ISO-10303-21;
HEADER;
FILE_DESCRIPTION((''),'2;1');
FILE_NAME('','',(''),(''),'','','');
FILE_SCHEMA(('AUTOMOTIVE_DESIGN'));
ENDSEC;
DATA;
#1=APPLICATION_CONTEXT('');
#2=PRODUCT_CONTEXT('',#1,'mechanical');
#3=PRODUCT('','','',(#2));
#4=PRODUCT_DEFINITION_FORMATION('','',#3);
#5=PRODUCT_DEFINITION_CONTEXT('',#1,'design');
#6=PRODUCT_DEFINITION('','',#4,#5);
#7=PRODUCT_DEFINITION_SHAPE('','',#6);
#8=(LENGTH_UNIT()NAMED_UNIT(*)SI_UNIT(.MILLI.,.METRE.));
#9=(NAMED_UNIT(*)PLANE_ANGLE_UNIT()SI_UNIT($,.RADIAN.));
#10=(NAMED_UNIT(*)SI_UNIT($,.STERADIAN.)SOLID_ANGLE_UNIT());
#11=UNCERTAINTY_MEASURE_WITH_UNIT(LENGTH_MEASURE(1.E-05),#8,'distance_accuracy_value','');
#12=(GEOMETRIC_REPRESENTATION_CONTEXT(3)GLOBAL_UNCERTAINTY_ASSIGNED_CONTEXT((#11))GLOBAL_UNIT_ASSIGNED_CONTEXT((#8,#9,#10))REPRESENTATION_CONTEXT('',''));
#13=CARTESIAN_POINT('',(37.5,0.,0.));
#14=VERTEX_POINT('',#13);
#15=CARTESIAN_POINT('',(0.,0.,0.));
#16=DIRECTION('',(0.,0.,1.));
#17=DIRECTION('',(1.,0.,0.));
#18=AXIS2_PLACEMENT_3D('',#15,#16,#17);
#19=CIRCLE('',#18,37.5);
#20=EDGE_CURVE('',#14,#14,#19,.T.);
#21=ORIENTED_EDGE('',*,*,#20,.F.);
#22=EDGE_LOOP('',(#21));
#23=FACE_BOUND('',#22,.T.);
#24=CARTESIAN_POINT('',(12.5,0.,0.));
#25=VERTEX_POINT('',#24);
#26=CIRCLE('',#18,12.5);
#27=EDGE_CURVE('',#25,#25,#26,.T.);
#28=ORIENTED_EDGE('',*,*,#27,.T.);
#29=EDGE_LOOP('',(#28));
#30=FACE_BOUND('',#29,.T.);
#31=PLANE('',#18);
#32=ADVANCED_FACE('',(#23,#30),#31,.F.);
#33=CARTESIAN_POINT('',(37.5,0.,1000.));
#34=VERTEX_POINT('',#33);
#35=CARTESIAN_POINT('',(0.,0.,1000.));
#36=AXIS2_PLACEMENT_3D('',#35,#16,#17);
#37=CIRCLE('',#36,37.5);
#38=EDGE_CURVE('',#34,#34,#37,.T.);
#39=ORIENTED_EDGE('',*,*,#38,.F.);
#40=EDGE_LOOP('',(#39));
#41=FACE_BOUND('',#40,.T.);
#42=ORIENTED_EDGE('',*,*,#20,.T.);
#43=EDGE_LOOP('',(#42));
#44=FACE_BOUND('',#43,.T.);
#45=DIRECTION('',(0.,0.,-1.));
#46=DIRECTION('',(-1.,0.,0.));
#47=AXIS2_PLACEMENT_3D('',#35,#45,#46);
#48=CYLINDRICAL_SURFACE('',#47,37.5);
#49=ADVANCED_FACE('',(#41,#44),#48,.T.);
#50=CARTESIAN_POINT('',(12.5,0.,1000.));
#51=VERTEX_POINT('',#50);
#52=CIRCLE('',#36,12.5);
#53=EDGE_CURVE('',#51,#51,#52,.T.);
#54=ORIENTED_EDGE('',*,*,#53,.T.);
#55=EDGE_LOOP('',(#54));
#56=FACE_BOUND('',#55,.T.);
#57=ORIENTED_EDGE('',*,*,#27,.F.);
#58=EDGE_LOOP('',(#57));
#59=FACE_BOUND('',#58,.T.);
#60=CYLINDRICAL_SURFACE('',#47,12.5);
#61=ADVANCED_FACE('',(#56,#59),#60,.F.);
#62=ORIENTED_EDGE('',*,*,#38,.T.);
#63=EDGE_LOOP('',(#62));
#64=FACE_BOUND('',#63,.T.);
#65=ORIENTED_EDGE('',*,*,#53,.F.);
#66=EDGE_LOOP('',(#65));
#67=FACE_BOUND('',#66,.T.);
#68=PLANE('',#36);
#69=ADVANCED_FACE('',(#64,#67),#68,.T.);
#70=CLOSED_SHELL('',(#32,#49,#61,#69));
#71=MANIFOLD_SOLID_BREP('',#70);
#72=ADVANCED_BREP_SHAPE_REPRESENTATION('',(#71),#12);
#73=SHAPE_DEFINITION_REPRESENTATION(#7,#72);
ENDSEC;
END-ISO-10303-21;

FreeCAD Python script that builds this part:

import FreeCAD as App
import Part
import Sketcher

V = App.Vector
Q = App.Units.Quantity

doc = App.newDocument("Part")
body = doc.addObject("PartDesign::Body", "Body")

# Sketch on XY plane
sketch1 = body.newObject("Sketcher::SketchObject", "Sketch")
sketch1.AttachmentSupport = (doc.getObject("XY_Plane"), [""])
sketch1.MapMode = "FlatFace"
sketch1.addGeometry(Part.Circle(V(0, 0, 0), V(0, 0, 1), 38), False)
sketch1.addGeometry(Part.Circle(V(0, 0, 0), V(0, 0, 1), 12), False)
sketch1.addConstraint(Sketcher.Constraint("Coincident", 0, 3, -1, 1))
sketch1.addConstraint(Sketcher.Constraint("Coincident", 1, 3, -1, 1))
sketch1.addConstraint(Sketcher.Constraint("Diameter", 0, Q("75 mm")))
sketch1.addConstraint(Sketcher.Constraint("Diameter", 1, Q("25 mm")))
pad1 = body.newObject("PartDesign::Pad", "Pad")
pad1.Profile = sketch1
pad1.Length = 1000

doc.recompute()
